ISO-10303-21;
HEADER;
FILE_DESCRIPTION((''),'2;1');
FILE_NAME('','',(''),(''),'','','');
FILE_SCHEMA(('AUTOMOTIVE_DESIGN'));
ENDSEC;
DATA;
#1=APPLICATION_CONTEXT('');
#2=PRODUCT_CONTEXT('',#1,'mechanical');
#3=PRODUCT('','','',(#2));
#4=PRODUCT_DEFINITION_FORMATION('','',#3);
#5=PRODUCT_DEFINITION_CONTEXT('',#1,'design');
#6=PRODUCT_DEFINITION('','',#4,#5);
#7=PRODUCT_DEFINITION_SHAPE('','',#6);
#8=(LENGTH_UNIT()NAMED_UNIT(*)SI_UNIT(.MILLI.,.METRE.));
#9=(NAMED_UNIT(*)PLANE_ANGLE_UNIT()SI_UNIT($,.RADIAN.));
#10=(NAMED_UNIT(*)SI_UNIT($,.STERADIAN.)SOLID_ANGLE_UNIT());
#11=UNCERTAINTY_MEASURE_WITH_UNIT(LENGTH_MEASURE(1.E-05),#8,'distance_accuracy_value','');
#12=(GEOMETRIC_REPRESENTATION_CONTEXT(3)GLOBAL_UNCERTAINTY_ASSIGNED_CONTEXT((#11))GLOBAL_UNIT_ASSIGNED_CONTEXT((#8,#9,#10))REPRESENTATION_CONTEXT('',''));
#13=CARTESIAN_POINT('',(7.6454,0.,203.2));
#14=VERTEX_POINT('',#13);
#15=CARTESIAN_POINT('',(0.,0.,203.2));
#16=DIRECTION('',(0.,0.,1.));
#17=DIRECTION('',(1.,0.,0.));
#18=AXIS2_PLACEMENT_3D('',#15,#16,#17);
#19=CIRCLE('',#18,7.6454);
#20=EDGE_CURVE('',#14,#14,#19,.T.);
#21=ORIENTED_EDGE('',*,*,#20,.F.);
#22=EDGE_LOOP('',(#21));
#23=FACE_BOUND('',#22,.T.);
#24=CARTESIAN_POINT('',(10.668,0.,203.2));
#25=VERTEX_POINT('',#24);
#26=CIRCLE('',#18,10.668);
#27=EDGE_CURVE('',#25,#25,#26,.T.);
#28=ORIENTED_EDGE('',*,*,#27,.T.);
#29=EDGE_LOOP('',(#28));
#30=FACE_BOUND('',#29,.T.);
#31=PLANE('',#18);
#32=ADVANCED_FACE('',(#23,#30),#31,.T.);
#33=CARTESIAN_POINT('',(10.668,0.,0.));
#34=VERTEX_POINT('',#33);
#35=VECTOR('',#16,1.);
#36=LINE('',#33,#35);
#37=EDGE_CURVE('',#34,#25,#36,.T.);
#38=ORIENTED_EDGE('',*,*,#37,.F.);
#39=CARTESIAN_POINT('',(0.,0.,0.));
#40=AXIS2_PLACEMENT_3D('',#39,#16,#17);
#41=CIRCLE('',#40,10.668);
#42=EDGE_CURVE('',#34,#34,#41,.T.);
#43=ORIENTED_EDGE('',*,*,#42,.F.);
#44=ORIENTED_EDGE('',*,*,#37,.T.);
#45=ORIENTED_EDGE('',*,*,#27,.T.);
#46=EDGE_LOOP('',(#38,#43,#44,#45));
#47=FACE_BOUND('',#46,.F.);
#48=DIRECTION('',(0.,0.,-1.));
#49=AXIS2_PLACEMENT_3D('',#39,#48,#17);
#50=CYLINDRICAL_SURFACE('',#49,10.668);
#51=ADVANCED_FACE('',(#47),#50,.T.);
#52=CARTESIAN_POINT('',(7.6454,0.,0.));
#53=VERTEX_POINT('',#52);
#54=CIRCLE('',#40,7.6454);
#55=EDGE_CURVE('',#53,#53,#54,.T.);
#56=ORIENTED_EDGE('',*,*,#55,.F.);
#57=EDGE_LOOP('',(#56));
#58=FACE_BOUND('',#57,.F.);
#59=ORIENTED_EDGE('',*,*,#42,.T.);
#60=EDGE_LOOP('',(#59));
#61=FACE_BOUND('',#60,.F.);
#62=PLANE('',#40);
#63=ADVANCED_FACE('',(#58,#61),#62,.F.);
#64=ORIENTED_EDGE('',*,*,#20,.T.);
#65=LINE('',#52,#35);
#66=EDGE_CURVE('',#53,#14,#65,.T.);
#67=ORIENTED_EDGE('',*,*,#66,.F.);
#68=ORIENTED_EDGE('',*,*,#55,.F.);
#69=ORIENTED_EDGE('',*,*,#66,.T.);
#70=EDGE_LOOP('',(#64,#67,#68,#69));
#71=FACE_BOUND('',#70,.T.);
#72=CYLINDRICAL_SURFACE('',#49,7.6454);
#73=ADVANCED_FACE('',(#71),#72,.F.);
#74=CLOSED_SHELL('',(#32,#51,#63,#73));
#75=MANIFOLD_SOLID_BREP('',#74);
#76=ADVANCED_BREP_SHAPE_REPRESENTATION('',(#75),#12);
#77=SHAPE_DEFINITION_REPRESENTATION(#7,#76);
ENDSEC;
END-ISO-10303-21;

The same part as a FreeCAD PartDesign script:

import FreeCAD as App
import Part
import Sketcher
from FreeCAD import Vector
Q = App.Units.Quantity

doc = App.newDocument("Part")
params = doc.addObject("Spreadsheet::Sheet", "Params")
for row, (alias, value) in enumerate([
    ("sketch1_diameter", "0.84 in"),
    ("sketch1_diameter2", "0.602 in"),
    ("pad1_length", "8 in"),
], start=1):
    params.set(f"A{row}", alias)
    params.set(f"B{row}", "=" + value)
    params.setAlias(f"B{row}", alias)

body = doc.addObject("PartDesign::Body", "Body")

sketch1 = body.newObject("Sketcher::SketchObject", "Sketch")
sketch1.AttachmentSupport = (doc.getObject("XY_Plane"), [""])
sketch1.MapMode = "FlatFace"
sketch1.addGeometry([
    Part.Circle(Vector(0, 0, 0), Vector(0, 0, 1), 11),
    Part.Circle(Vector(0, 0, 0), Vector(0, 0, 1), 8),
], False)
sketch1.addConstraint([
    Sketcher.Constraint("Coincident", 0, 3, -1, 1),
    Sketcher.Constraint("Coincident", 1, 3, -1, 1),
    Sketcher.Constraint("Diameter", 0, Q("0.84 in")),
    Sketcher.Constraint("Diameter", 1, Q("0.602 in")),
])
sketch1.setExpression("Constraints[2]", "Params.sketch1_diameter")
sketch1.setExpression("Constraints[3]", "Params.sketch1_diameter2")
pad1 = body.newObject("PartDesign::Pad", "Pad")
pad1.Profile = sketch1
pad1.setExpression("Length", "Params.pad1_length")

doc.recompute()
